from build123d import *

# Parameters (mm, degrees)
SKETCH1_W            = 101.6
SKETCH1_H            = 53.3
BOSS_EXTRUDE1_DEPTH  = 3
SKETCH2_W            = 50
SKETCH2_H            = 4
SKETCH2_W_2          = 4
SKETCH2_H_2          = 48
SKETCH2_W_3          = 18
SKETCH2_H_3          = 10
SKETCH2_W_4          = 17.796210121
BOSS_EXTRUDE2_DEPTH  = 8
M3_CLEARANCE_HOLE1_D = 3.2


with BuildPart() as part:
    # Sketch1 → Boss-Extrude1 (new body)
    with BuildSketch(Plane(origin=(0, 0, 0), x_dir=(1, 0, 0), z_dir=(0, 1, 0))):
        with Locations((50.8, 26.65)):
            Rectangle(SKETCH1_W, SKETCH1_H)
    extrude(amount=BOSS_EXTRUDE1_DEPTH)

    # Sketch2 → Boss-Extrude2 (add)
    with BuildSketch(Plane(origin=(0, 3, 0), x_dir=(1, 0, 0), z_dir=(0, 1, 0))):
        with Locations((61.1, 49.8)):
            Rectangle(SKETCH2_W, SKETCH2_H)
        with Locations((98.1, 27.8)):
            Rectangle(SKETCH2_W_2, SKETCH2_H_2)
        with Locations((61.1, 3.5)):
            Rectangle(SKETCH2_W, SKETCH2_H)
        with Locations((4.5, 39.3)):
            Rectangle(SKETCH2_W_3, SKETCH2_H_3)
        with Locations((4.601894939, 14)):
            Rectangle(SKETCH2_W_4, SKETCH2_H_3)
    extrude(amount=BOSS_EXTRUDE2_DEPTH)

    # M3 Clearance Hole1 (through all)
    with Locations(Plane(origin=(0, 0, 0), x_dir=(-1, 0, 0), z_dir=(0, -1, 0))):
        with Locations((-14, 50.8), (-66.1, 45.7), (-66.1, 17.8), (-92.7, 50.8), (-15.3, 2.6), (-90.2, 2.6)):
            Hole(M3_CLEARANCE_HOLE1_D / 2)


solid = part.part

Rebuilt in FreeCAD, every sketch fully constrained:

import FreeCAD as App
import Part
import Sketcher
from FreeCAD import Vector
Q = App.Units.Quantity


def add_polygon(sketch, points):
    """Adds a closed chain of lines whose ends are joined by coincident constraints."""
    first, n = sketch.GeometryCount, len(points)
    for a, b in zip(points, points[1:] + points[:1]):
        sketch.addGeometry(Part.LineSegment(App.Vector(*a, 0), App.Vector(*b, 0)), False)
    for i in range(n):
        sketch.addConstraint(Sketcher.Constraint("Coincident", first + i, 2, first + (i + 1) % n, 1))

doc = App.newDocument("Part")
body = doc.addObject("PartDesign::Body", "Body")

# Sketch on XZ plane
sketch1 = body.newObject("Sketcher::SketchObject", "Sketch")
sketch1.AttachmentSupport = (doc.getObject("XZ_Plane"), [""])
sketch1.MapMode = "FlatFace"
add_polygon(sketch1, [(0, -53.3), (0, 0), (101.6, 0), (101.6, -53.3)])  # lines 0-3
sketch1.addConstraint([
    Sketcher.Constraint("Vertical", 0),
    Sketcher.Constraint("Horizontal", 1),
    Sketcher.Constraint("Vertical", 2),
    Sketcher.Constraint("Horizontal", 3),
    Sketcher.Constraint("Coincident", 0, 2, -1, 1),
    Sketcher.Constraint("DistanceX", 1, 1, 1, 2, Q("101.6 mm")),
    Sketcher.Constraint("DistanceY", 0, 1, 0, 2, Q("53.3 mm")),
])
pad1 = body.newObject("PartDesign::Pad", "Pad")
pad1.Profile = sketch1
pad1.Length = 3
pad1.Reversed = True

# Sketch on XZ plane
sketch2 = body.newObject("Sketcher::SketchObject", "Sketch001")
sketch2.AttachmentSupport = (doc.getObject("XZ_Plane"), [""])
sketch2.MapMode = "FlatFace"
sketch2.AttachmentOffset = App.Placement(Vector(0, 0, -3), App.Rotation())
add_polygon(sketch2, [(36.1, -51.8), (36.1, -47.8), (86.1, -47.8), (86.1, -51.8)])  # lines 0-3
add_polygon(sketch2, [(96.1, -51.8), (96.1, -3.8), (100.1, -3.8), (100.1, -51.8)])  # lines 4-7
add_polygon(sketch2, [(36.1, -5.5), (36.1, -1.5), (86.1, -1.5), (86.1, -5.5)])  # lines 8-11
add_polygon(sketch2, [(-4.5, -44.3), (-4.5, -34.3), (13.5, -34.3), (13.5, -44.3)])  # lines 12-15
add_polygon(sketch2, [(-4.29621, -19), (-4.29621, -9), (13.5, -9), (13.5, -19)])  # lines 16-19
sketch2.addConstraint([
    Sketcher.Constraint("Vertical", 0),
    Sketcher.Constraint("Horizontal", 1),
    Sketcher.Constraint("Vertical", 2),
    Sketcher.Constraint("Horizontal", 3),
    Sketcher.Constraint("Vertical", 4),
    Sketcher.Constraint("Horizontal", 5),
    Sketcher.Constraint("Vertical", 6),
    Sketcher.Constraint("Horizontal", 7),
    Sketcher.Constraint("Vertical", 8),
    Sketcher.Constraint("Horizontal", 9),
    Sketcher.Constraint("Vertical", 10),
    Sketcher.Constraint("Horizontal", 11),
    Sketcher.Constraint("Vertical", 12),
    Sketcher.Constraint("Horizontal", 13),
    Sketcher.Constraint("Vertical", 14),
    Sketcher.Constraint("Horizontal", 15),
    Sketcher.Constraint("Vertical", 16),
    Sketcher.Constraint("Horizontal", 17),
    Sketcher.Constraint("Vertical", 18),
    Sketcher.Constraint("Horizontal", 19),
    Sketcher.Constraint("Horizontal", 3, 2, 6, 2),
    Sketcher.Constraint("Vertical", 3, 2, 8, 2),
    Sketcher.Constraint("Vertical", 2, 2, 9, 2),
    Sketcher.Constraint("Vertical", 14, 2, 17, 2),
    Sketcher.Constraint("Equal", 7, 0),
    Sketcher.Constraint("Equal", 2, 8),
    Sketcher.Constraint("Equal", 14, 16),
    Sketcher.Constraint("DistanceX", 1, 1, 1, 2, Q("50 mm")),
    Sketcher.Constraint("DistanceX", 5, 1, 5, 2, Q("4 mm")),
    Sketcher.Constraint("DistanceX", 13, 1, 13, 2, Q("18 mm")),
    Sketcher.Constraint("DistanceY", 4, 1, 4, 2, Q("48 mm")),
    Sketcher.Constraint("DistanceY", 12, 1, 12, 2, Q("10 mm")),
    Sketcher.Constraint("DistanceY", 16, 2, -1, 1, Q("9 mm")),
    Sketcher.Constraint("DistanceX", 1, 2, 4, 2, Q("10 mm")),
    Sketcher.Constraint("DistanceX", -1, 1, 0, 2, Q("36.1 mm")),
    Sketcher.Constraint("DistanceY", 0, 2, -1, 1, Q("47.8 mm")),
    Sketcher.Constraint("DistanceY", 8, 2, -1, 1, Q("1.5 mm")),
    Sketcher.Constraint("DistanceX", 12, 2, -1, 1, Q("4.5 mm")),
    Sketcher.Constraint("DistanceY", 12, 2, -1, 1, Q("34.3 mm")),
    Sketcher.Constraint("DistanceX", 17, 1, 17, 2, Q("17.79621 mm")),
])
pad2 = body.newObject("PartDesign::Pad", "Pad001")
pad2.Profile = sketch2
pad2.Length = 8
pad2.Reversed = True

# Sketch on XZ plane
sketch3 = body.newObject("Sketcher::SketchObject", "Sketch002")
sketch3.AttachmentSupport = (doc.getObject("XZ_Plane"), [""])
sketch3.MapMode = "FlatFace"
sketch3.addGeometry([
    Part.Circle(Vector(14, -50.8, 0), Vector(0, 0, 1), 1.6),  # 0
    Part.Circle(Vector(66.1, -45.7, 0), Vector(0, 0, 1), 1.6),  # 1
    Part.Circle(Vector(66.1, -17.8, 0), Vector(0, 0, 1), 1.6),  # 2
    Part.Circle(Vector(92.7, -50.8, 0), Vector(0, 0, 1), 1.6),  # 3
    Part.Circle(Vector(15.3, -2.6, 0), Vector(0, 0, 1), 1.6),  # 4
    Part.Circle(Vector(90.2, -2.6, 0), Vector(0, 0, 1), 1.6),  # 5
], False)
sketch3.addConstraint([
    Sketcher.Constraint("Equal", 0, 1),
    Sketcher.Constraint("Equal", 1, 2),
    Sketcher.Constraint("Equal", 2, 3),
    Sketcher.Constraint("Equal", 3, 4),
    Sketcher.Constraint("Equal", 4, 5),
    Sketcher.Constraint("Horizontal", 0, 3, 3, 3),
    Sketcher.Constraint("Horizontal", 4, 3, 5, 3),
    Sketcher.Constraint("Vertical", 1, 3, 2, 3),
    Sketcher.Constraint("Diameter", 0, Q("3.2 mm")),
    Sketcher.Constraint("DistanceX", -1, 1, 0, 3, Q("14 mm")),
    Sketcher.Constraint("DistanceY", 0, 3, 2, 3, Q("33 mm")),
    Sketcher.Constraint("DistanceY", 0, 3, -1, 1, Q("50.8 mm")),
    Sketcher.Constraint("DistanceX", -1, 1, 1, 3, Q("66.1 mm")),
    Sketcher.Constraint("DistanceY", 1, 3, -1, 1, Q("45.7 mm")),
    Sketcher.Constraint("DistanceX", -1, 1, 3, 3, Q("92.7 mm")),
    Sketcher.Constraint("DistanceX", -1, 1, 4, 3, Q("15.3 mm")),
    Sketcher.Constraint("DistanceY", 4, 3, -1, 1, Q("2.6 mm")),
    Sketcher.Constraint("DistanceX", -1, 1, 5, 3, Q("90.2 mm")),
])
doc.recompute()
hole = body.newObject("PartDesign::Hole", "Hole")
hole.Profile = sketch3
hole.ThreadType = "None"
hole.Diameter = 3.2
hole.DepthType = "ThroughAll"

doc.recompute()
